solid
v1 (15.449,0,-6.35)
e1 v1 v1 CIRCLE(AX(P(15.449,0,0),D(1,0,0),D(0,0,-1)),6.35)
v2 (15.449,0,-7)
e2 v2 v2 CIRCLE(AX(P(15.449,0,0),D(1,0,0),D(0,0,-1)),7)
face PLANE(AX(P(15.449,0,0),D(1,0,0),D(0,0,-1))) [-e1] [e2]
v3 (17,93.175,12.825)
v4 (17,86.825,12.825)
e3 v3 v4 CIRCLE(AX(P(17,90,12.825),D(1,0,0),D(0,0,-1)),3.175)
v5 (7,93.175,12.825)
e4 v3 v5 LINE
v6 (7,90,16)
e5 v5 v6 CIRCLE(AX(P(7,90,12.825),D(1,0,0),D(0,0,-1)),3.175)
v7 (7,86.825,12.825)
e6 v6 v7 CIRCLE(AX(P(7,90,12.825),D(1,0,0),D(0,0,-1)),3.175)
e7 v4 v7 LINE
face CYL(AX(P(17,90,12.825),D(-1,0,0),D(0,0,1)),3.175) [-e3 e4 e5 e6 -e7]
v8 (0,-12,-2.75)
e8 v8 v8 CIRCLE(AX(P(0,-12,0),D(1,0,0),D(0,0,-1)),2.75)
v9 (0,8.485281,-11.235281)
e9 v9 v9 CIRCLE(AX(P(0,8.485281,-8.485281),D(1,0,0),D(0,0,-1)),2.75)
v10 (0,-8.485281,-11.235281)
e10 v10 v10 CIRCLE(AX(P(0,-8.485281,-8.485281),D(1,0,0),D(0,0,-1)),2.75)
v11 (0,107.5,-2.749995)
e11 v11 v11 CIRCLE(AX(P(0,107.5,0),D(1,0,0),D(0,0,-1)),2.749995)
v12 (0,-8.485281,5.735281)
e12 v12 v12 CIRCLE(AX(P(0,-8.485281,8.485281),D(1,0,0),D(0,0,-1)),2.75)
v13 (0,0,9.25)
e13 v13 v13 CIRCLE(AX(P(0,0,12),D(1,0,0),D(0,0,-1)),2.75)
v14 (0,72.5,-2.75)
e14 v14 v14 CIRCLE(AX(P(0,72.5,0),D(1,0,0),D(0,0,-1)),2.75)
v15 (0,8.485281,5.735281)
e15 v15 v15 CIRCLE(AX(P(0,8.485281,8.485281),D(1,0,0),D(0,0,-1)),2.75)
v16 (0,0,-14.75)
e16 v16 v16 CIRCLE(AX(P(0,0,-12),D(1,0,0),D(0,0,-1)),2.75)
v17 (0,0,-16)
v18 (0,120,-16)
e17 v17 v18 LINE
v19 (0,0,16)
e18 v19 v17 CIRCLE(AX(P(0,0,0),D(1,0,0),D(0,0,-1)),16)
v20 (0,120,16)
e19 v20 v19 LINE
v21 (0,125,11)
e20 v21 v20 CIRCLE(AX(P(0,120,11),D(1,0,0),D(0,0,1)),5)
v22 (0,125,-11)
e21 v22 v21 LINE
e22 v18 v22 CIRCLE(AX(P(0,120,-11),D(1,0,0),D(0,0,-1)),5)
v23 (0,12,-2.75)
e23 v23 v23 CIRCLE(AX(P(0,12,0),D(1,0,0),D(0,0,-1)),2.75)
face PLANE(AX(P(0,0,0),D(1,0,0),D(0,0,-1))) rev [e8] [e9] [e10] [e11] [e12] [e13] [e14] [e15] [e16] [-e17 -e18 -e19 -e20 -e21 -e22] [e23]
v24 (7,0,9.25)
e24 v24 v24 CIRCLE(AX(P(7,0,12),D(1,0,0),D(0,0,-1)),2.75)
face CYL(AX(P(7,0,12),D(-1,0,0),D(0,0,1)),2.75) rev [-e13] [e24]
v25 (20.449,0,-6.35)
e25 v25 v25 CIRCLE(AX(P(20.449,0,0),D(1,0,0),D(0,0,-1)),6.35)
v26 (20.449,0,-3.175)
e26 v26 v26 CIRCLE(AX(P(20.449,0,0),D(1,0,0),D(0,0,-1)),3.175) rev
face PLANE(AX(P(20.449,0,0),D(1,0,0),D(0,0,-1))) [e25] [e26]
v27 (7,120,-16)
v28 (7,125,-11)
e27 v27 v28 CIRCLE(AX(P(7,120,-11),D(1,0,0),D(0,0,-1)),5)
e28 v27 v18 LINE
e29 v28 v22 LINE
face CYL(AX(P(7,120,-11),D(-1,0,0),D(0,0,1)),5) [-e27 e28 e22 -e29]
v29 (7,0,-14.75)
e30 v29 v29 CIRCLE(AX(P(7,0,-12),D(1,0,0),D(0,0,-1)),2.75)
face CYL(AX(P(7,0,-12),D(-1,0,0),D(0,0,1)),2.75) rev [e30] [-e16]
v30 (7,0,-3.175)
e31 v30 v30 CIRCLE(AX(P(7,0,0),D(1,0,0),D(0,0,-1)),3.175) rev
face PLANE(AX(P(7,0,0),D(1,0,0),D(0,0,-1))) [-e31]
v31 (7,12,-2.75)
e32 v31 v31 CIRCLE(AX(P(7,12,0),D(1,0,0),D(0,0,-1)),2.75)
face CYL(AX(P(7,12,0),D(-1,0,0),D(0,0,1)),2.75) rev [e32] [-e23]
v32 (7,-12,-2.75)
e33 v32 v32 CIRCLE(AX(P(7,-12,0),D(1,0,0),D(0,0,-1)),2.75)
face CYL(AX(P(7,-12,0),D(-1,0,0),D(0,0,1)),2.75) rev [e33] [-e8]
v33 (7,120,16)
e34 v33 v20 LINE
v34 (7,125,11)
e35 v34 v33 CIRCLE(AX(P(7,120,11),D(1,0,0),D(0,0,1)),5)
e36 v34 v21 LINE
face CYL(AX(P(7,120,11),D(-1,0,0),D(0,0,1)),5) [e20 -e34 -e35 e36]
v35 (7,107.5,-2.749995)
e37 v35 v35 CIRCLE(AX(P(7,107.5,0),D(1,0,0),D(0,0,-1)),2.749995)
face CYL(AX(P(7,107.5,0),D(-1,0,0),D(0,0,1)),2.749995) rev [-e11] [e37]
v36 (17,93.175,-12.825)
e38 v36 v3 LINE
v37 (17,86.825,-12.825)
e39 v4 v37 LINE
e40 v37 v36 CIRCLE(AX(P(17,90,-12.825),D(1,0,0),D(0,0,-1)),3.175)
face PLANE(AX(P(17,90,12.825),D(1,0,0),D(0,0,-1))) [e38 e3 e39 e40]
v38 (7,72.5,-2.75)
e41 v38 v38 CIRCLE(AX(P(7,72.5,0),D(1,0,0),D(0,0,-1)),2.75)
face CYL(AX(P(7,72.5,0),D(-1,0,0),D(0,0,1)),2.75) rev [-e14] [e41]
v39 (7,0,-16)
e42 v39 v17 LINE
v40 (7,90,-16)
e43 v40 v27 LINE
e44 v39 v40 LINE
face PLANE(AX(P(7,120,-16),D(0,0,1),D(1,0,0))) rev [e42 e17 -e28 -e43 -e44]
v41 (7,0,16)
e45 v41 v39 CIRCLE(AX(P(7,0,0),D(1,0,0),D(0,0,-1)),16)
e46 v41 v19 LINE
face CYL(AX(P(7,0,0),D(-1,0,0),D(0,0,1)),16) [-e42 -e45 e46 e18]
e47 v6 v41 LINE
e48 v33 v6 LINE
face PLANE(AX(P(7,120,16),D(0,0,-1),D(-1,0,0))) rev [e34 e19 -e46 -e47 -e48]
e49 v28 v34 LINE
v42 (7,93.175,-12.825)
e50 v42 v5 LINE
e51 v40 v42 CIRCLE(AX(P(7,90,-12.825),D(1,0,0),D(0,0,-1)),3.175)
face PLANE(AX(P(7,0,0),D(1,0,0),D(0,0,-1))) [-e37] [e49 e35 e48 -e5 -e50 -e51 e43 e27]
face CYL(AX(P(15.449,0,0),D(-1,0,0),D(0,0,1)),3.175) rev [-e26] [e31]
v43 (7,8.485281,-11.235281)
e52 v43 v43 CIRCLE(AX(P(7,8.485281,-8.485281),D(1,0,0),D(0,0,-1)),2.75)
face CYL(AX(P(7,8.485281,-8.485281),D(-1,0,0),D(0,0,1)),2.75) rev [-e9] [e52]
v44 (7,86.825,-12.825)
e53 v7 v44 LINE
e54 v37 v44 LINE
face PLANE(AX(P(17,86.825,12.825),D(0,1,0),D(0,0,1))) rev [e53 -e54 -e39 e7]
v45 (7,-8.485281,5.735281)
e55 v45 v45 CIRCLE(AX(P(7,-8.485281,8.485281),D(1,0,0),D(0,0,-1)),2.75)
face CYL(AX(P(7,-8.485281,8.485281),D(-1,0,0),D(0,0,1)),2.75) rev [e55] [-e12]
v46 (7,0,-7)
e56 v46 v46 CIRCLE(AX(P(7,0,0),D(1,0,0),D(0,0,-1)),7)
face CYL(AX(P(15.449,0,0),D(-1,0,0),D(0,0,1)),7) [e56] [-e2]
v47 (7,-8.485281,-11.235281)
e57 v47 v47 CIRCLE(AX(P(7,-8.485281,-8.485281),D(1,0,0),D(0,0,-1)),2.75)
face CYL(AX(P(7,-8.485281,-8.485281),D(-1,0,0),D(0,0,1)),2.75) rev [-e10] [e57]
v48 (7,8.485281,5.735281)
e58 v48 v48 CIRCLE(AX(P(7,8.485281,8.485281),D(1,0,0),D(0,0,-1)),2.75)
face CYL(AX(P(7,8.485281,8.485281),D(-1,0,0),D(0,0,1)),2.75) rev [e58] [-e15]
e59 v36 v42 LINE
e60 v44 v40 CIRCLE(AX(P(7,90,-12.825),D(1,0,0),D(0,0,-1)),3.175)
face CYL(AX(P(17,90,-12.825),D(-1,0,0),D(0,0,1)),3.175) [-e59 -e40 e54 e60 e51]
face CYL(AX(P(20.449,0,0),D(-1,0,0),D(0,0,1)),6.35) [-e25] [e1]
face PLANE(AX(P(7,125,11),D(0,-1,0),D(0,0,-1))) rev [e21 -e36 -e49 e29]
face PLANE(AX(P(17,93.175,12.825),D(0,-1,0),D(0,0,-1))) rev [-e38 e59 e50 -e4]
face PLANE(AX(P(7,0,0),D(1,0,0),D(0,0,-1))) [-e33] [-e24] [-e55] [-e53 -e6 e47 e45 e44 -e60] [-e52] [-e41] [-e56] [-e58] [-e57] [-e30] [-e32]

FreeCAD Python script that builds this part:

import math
import FreeCAD as App
import Part
import Sketcher

V = App.Vector

doc = App.newDocument("Part")
body = doc.addObject("PartDesign::Body", "Body")

sketch1 = body.newObject("Sketcher::SketchObject", "Sketch")
sketch1.AttachmentSupport = (doc.getObject("YZ_Plane"), [""])
sketch1.MapMode = "FlatFace"
sketch1.addGeometry(Part.LineSegment(V(125, -11, 0), V(125, 11, 0)), False)
sketch1.addGeometry(Part.ArcOfCircle(Part.Circle(V(120, 11, 0), V(0, 0, 1), 5), math.radians(0), math.radians(90)), False)
sketch1.addGeometry(Part.LineSegment(V(120, 16, 0), V(0, 16, 0)), False)
sketch1.addGeometry(Part.ArcOfCircle(Part.Circle(V(0, 0, 0), V(0, 0, 1), 16), math.radians(90), math.radians(270)), False)
sketch1.addGeometry(Part.LineSegment(V(0, -16, 0), V(120, -16, 0)), False)
sketch1.addGeometry(Part.ArcOfCircle(Part.Circle(V(120, -11, 0), V(0, 0, 1), 5), math.radians(-90), math.radians(0)), False)
sketch1.addGeometry(Part.Circle(V(0, -12, 0), V(0, 0, 1), 2.75), False)
sketch1.addGeometry(Part.Circle(V(-8.485281, -8.485281, 0), V(0, 0, 1), 2.75), False)
sketch1.addGeometry(Part.Circle(V(8.485281, -8.485281, 0), V(0, 0, 1), 2.75), False)
sketch1.addGeometry(Part.Circle(V(-12, 0, 0), V(0, 0, 1), 2.75), False)
sketch1.addGeometry(Part.Circle(V(12, 0, 0), V(0, 0, 1), 2.75), False)
sketch1.addGeometry(Part.Circle(V(-8.485281, 8.485281, 0), V(0, 0, 1), 2.75), False)
sketch1.addGeometry(Part.Circle(V(0, 12, 0), V(0, 0, 1), 2.75), False)
sketch1.addGeometry(Part.Circle(V(8.485281, 8.485281, 0), V(0, 0, 1), 2.75), False)
sketch1.addGeometry(Part.Circle(V(72.5, 0, 0), V(0, 0, 1), 2.75), False)
sketch1.addGeometry(Part.Circle(V(107.5, 0, 0), V(0, 0, 1), 2.749995), False)
sketch1.addConstraint(Sketcher.Constraint("Tangent", 0, 2, 1, 1))
sketch1.addConstraint(Sketcher.Constraint("Tangent", 1, 2, 2, 1))
sketch1.addConstraint(Sketcher.Constraint("Tangent", 2, 2, 3, 1))
sketch1.addConstraint(Sketcher.Constraint("Tangent", 3, 2, 4, 1))
sketch1.addConstraint(Sketcher.Constraint("Tangent", 4, 2, 5, 1))
sketch1.addConstraint(Sketcher.Constraint("Tangent", 5, 2, 0, 1))
sketch1.addConstraint(Sketcher.Constraint("Vertical", 0))
sketch1.addConstraint(Sketcher.Constraint("Horizontal", 2))
sketch1.addConstraint(Sketcher.Constraint("Horizontal", 4))
sketch1.addConstraint(Sketcher.Constraint("Coincident", 3, 3, -1, 1))
sketch1.addConstraint(Sketcher.Constraint("Equal", 1, 5))
sketch1.addConstraint(Sketcher.Constraint("Equal", 6, 7))
sketch1.addConstraint(Sketcher.Constraint("Equal", 7, 8))
sketch1.addConstraint(Sketcher.Constraint("Equal", 8, 9))
sketch1.addConstraint(Sketcher.Constraint("Equal", 9, 10))
sketch1.addConstraint(Sketcher.Constraint("Equal", 10, 11))
sketch1.addConstraint(Sketcher.Constraint("Equal", 11, 12))
sketch1.addConstraint(Sketcher.Constraint("Equal", 12, 13))
sketch1.addConstraint(Sketcher.Constraint("Equal", 13, 14))
sketch1.addConstraint(Sketcher.Constraint("Symmetric", 9, 3, 10, 3, -1, 1))
sketch1.addConstraint(Sketcher.Constraint("Symmetric", 8, 3, 11, 3, -1, 1))
sketch1.addConstraint(Sketcher.Constraint("Symmetric", 6, 3, 12, 3, -1, 1))
sketch1.addConstraint(Sketcher.Constraint("Symmetric", 7, 3, 13, 3, -1, 1))
sketch1.addConstraint(Sketcher.Constraint("Symmetric", 7, 3, 8, 3, -2))
sketch1.addConstraint(Sketcher.Constraint("PointOnObject", 6, 3, -2))
sketch1.addConstraint(Sketcher.Constraint("PointOnObject", 9, 3, -1))
sketch1.addConstraint(Sketcher.Constraint("PointOnObject", 14, 3, -1))
sketch1.addConstraint(Sketcher.Constraint("PointOnObject", 15, 3, -1))
sketch1.addConstraint(Sketcher.Constraint("Radius", 1, 5.0))
sketch1.addConstraint(Sketcher.Constraint("Radius", 3, 16.0))
sketch1.addConstraint(Sketcher.Constraint("Diameter", 6, 5.5))
sketch1.addConstraint(Sketcher.Constraint("DistanceX", 2, 2, 2, 1, 120.0))
sketch1.addConstraint(Sketcher.Constraint("DistanceY", 6, 3, -1, 1, 12.0))
sketch1.addConstraint(Sketcher.Constraint("DistanceX", 9, 3, -1, 1, 12.0))
sketch1.addConstraint(Sketcher.Constraint("DistanceX", 14, 3, 15, 3, 35.0))
sketch1.addConstraint(Sketcher.Constraint("DistanceX", -1, 1, 14, 3, 72.5))
sketch1.addConstraint(Sketcher.Constraint("Diameter", 15, 5.499989))
sketch1.addConstraint(Sketcher.Constraint("DistanceX", 7, 3, -1, 1, 8.485281))
sketch1.addConstraint(Sketcher.Constraint("DistanceY", 7, 3, -1, 1, 8.485281))
pad1 = body.newObject("PartDesign::Pad", "Pad")
pad1.Profile = sketch1
pad1.Length = 7

sketch2 = body.newObject("Sketcher::SketchObject", "Sketch001")
sketch2.AttachmentSupport = (doc.getObject("YZ_Plane"), [""])
sketch2.MapMode = "FlatFace"
sketch2.AttachmentOffset = App.Placement(V(0, 0, 7), App.Rotation())
sketch2.addGeometry(Part.Circle(V(0, 0, 0), V(0, 0, 1), 7), False)
sketch2.addGeometry(Part.Circle(V(0, 0, 0), V(0, 0, 1), 3.175), False)
sketch2.addConstraint(Sketcher.Constraint("Coincident", 0, 3, -1, 1))
sketch2.addConstraint(Sketcher.Constraint("Coincident", 1, 3, -1, 1))
sketch2.addConstraint(Sketcher.Constraint("Diameter", 0, 14.0))
sketch2.addConstraint(Sketcher.Constraint("Diameter", 1, 6.35))
pad2 = body.newObject("PartDesign::Pad", "Pad001")
pad2.Profile = sketch2
pad2.Length = 8.449

sketch3 = body.newObject("Sketcher::SketchObject", "Sketch002")
sketch3.AttachmentSupport = (doc.getObject("YZ_Plane"), [""])
sketch3.MapMode = "FlatFace"
sketch3.AttachmentOffset = App.Placement(V(0, 0, 15.449), App.Rotation())
sketch3.addGeometry(Part.Circle(V(0, 0, 0), V(0, 0, 1), 6.35), False)
sketch3.addGeometry(Part.Circle(V(0, 0, 0), V(0, 0, 1), 3.175), False)
sketch3.addConstraint(Sketcher.Constraint("Coincident", 0, 3, -1, 1))
sketch3.addConstraint(Sketcher.Constraint("Coincident", 1, 3, -1, 1))
sketch3.addConstraint(Sketcher.Constraint("Diameter", 0, 12.7))
sketch3.addConstraint(Sketcher.Constraint("Diameter", 1, 6.35))
pad3 = body.newObject("PartDesign::Pad", "Pad002")
pad3.Profile = sketch3
pad3.Length = 5

sketch4 = body.newObject("Sketcher::SketchObject", "Sketch003")
sketch4.AttachmentSupport = (doc.getObject("YZ_Plane"), [""])
sketch4.MapMode = "FlatFace"
sketch4.AttachmentOffset = App.Placement(V(0, 0, 7), App.Rotation())
sketch4.addGeometry(Part.LineSegment(V(93.175, -12.825, 0), V(93.175, 12.825, 0)), False)
sketch4.addGeometry(Part.ArcOfCircle(Part.Circle(V(90, 12.825, 0), V(0, 0, 1), 3.175), math.radians(0), math.radians(180)), False)
sketch4.addGeometry(Part.LineSegment(V(86.825, 12.825, 0), V(86.825, -12.825, 0)), False)
sketch4.addGeometry(Part.ArcOfCircle(Part.Circle(V(90, -12.825, 0), V(0, 0, 1), 3.175), math.radians(180), math.radians(360)), False)
sketch4.addConstraint(Sketcher.Constraint("Tangent", 0, 2, 1, 1))
sketch4.addConstraint(Sketcher.Constraint("Tangent", 1, 2, 2, 1))
sketch4.addConstraint(Sketcher.Constraint("Tangent", 2, 2, 3, 1))
sketch4.addConstraint(Sketcher.Constraint("Tangent", 3, 2, 0, 1))
sketch4.addConstraint(Sketcher.Constraint("Vertical", 0))
sketch4.addConstraint(Sketcher.Constraint("Vertical", 2))
sketch4.addConstraint(Sketcher.Constraint("DistanceX", -1, 1, 1, 3, 90.0))
sketch4.addConstraint(Sketcher.Constraint("Radius", 1, 3.175))
sketch4.addConstraint(Sketcher.Constraint("DistanceY", 0, 1, 0, 2, 25.65))
sketch4.addConstraint(Sketcher.Constraint("DistanceY", -1, 1, 1, 3, 12.825))
pad4 = body.newObject("PartDesign::Pad", "Pad003")
pad4.Profile = sketch4
pad4.Length = 10

doc.recompute()
